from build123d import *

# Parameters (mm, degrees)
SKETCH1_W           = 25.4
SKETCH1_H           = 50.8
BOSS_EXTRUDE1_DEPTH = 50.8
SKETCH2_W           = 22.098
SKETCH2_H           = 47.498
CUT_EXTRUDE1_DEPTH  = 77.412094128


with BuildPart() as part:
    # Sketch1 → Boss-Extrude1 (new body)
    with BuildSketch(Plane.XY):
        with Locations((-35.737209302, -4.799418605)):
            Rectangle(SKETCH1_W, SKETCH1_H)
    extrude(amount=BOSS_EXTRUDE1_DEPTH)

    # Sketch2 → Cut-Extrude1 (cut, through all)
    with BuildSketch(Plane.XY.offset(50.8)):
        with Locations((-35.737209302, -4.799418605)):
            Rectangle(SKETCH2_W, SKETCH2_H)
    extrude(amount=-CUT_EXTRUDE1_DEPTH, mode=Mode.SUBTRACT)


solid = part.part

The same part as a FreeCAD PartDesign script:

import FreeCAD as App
import Part
import Sketcher

V = App.Vector
Q = App.Units.Quantity

doc = App.newDocument("Part")
body = doc.addObject("PartDesign::Body", "Body")

sketch1 = doc.addObject("Sketcher::SketchObject", "Sketch")
body.addObject(sketch1)
sketch1.AttachmentSupport = (doc.XY_Plane, [""])
sketch1.MapMode = "FlatFace"
sketch1.addGeometry([
    Part.LineSegment(V(-48.437209, 20.600581, 0), V(-48.437209, -30.199419, 0)),
    Part.LineSegment(V(-48.437209, -30.199419, 0), V(-23.037209, -30.199419, 0)),
    Part.LineSegment(V(-23.037209, -30.199419, 0), V(-23.037209, 20.600581, 0)),
    Part.LineSegment(V(-23.037209, 20.600581, 0), V(-48.437209, 20.600581, 0)),
], False)
sketch1.addConstraint([
    Sketcher.Constraint("Coincident", 0, 2, 1, 1),
    Sketcher.Constraint("Coincident", 1, 2, 2, 1),
    Sketcher.Constraint("Coincident", 2, 2, 3, 1),
    Sketcher.Constraint("Coincident", 3, 2, 0, 1),
    Sketcher.Constraint("Vertical", 0),
    Sketcher.Constraint("Horizontal", 1),
    Sketcher.Constraint("Vertical", 2),
    Sketcher.Constraint("Horizontal", 3),
    Sketcher.Constraint("DistanceX", 1, 1, 1, 2, Q("1 in")),
    Sketcher.Constraint("DistanceY", 0, 2, 0, 1, Q("2 in")),
    Sketcher.Constraint("DistanceX", 0, 2, -1, 1, 48.437209),
    Sketcher.Constraint("DistanceY", 0, 2, -1, 1, 30.199419),
])
pad1 = doc.addObject("PartDesign::Pad", "Pad")
body.addObject(pad1)
pad1.Profile = sketch1
pad1.Length = Q("2 in")

sketch2 = doc.addObject("Sketcher::SketchObject", "Sketch001")
body.addObject(sketch2)
sketch2.AttachmentSupport = (doc.XY_Plane, [""])
sketch2.MapMode = "FlatFace"
sketch2.AttachmentOffset = App.Placement(V(0, 0, 2 * 25.4), App.Rotation())
sketch2.addGeometry([
    Part.LineSegment(V(-46.786209, 18.949581, 0), V(-46.786209, -28.548419, 0)),
    Part.LineSegment(V(-46.786209, -28.548419, 0), V(-24.688209, -28.548419, 0)),
    Part.LineSegment(V(-24.688209, -28.548419, 0), V(-24.688209, 18.949581, 0)),
    Part.LineSegment(V(-24.688209, 18.949581, 0), V(-46.786209, 18.949581, 0)),
], False)
sketch2.addConstraint([
    Sketcher.Constraint("Coincident", 0, 2, 1, 1),
    Sketcher.Constraint("Coincident", 1, 2, 2, 1),
    Sketcher.Constraint("Coincident", 2, 2, 3, 1),
    Sketcher.Constraint("Coincident", 3, 2, 0, 1),
    Sketcher.Constraint("Vertical", 0),
    Sketcher.Constraint("Horizontal", 1),
    Sketcher.Constraint("Vertical", 2),
    Sketcher.Constraint("Horizontal", 3),
    Sketcher.Constraint("DistanceX", 1, 1, 1, 2, Q("0.87 in")),
    Sketcher.Constraint("DistanceY", 0, 2, 0, 1, Q("1.87 in")),
    Sketcher.Constraint("DistanceX", 0, 2, -1, 1, 46.786209),
    Sketcher.Constraint("DistanceY", 0, 2, -1, 1, 28.548419),
])
pocket1 = doc.addObject("PartDesign::Pocket", "Pocket")
body.addObject(pocket1)
pocket1.Profile = sketch2
pocket1.Type = "ThroughAll"

doc.recompute()
